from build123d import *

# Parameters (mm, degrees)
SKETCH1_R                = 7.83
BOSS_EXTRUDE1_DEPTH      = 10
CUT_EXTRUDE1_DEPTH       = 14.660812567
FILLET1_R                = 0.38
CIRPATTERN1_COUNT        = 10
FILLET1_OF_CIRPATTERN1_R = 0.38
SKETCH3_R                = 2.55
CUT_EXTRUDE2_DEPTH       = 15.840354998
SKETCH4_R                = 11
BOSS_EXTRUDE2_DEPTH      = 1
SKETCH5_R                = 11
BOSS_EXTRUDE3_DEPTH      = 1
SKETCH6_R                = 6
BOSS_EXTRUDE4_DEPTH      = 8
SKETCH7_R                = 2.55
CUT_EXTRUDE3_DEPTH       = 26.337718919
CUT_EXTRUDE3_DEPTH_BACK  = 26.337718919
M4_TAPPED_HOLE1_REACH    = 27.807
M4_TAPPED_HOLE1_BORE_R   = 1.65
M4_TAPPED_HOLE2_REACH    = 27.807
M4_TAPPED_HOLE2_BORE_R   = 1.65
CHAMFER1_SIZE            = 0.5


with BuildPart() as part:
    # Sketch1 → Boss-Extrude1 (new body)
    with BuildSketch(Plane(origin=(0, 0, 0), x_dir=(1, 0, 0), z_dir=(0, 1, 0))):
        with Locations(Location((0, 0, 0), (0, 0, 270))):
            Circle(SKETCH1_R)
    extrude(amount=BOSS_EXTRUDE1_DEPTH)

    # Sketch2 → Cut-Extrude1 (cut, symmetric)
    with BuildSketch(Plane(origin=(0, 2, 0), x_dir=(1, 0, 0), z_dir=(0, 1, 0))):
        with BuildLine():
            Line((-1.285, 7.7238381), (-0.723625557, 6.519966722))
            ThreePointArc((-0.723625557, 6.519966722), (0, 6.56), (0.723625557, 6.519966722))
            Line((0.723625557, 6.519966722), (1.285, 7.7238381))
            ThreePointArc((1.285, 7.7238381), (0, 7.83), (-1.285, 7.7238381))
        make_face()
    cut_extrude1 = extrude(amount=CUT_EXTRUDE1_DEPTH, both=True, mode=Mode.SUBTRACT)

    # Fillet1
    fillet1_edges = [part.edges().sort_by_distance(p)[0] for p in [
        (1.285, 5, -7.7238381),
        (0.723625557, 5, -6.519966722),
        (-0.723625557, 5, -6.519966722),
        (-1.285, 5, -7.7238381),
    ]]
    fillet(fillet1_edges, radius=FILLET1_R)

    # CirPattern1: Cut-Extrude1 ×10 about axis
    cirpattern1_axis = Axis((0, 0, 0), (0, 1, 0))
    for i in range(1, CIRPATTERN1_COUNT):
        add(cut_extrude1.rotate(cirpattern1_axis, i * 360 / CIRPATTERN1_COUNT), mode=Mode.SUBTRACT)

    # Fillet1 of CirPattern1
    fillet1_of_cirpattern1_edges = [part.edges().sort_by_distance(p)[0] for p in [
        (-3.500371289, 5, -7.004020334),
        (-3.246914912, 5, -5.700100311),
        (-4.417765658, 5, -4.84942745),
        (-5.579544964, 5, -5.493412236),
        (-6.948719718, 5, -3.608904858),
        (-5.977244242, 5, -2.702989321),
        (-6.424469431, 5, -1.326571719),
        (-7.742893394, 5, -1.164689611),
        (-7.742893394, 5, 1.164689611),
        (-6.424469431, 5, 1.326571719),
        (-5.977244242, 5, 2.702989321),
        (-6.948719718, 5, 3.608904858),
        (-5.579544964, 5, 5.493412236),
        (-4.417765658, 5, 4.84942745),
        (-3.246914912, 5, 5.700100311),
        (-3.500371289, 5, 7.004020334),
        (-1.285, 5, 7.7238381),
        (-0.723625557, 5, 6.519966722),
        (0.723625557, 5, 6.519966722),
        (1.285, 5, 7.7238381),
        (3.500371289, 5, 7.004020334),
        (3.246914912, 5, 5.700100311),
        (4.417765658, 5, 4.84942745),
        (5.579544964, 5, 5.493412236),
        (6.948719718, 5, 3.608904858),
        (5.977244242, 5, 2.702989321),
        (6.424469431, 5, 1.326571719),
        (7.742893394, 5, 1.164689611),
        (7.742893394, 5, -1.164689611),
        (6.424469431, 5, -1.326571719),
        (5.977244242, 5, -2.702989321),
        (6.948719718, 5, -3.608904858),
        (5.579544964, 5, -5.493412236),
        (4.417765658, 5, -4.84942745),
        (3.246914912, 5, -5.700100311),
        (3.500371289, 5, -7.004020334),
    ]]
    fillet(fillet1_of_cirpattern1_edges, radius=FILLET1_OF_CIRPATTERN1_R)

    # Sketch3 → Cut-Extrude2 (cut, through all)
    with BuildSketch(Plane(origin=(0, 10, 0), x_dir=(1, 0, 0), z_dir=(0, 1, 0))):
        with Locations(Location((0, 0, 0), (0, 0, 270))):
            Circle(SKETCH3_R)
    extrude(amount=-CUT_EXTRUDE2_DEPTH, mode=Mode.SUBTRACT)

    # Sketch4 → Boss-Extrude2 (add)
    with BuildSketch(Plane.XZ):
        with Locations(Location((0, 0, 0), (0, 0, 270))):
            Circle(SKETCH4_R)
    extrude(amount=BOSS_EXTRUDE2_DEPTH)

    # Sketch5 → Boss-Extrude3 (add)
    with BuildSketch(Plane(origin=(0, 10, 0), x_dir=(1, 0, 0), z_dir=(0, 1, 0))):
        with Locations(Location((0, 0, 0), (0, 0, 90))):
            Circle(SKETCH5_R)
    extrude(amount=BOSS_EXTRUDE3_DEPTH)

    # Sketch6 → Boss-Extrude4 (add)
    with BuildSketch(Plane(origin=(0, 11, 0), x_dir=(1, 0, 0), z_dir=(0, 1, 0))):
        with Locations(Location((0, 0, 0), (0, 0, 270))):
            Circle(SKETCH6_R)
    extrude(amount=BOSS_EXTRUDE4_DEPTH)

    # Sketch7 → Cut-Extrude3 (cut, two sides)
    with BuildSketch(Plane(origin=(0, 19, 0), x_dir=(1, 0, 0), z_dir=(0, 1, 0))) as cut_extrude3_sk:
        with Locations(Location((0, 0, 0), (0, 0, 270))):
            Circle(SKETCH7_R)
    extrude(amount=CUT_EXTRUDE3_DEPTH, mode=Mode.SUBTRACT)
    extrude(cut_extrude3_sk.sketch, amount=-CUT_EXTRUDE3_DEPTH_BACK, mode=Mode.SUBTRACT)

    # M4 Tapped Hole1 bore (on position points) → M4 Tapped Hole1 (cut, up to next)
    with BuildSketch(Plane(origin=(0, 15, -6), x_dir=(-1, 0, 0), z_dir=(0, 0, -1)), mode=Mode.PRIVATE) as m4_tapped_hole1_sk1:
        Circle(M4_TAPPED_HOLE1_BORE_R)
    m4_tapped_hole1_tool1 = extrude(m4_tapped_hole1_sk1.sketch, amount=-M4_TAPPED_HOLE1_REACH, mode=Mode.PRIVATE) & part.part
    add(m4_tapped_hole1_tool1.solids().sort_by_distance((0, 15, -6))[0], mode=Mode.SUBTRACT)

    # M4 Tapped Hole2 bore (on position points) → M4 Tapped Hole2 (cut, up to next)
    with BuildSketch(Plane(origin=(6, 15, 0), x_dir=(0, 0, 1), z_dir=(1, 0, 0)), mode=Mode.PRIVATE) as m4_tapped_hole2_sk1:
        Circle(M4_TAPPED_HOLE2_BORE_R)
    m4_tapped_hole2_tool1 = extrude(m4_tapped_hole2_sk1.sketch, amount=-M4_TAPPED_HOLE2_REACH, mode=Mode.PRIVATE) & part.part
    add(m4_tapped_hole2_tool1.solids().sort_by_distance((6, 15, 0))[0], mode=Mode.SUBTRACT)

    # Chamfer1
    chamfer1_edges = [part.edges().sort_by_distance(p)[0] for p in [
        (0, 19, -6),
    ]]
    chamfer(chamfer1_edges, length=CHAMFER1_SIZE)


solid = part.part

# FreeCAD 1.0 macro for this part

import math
import FreeCAD as App
import Part
import Sketcher
Q = App.Units.Quantity


def edges_at(feature, points):
    """Names of the edges that pass closest to the given points."""
    edges = feature.Shape.Edges
    near = lambda p: min(range(len(edges)), key=lambda i: edges[i].distToShape(Part.Vertex(*p))[0])
    return sorted({f"Edge{near(p) + 1}" for p in points})

doc = App.newDocument("Part")
body = doc.addObject("PartDesign::Body", "Body")

sketch1 = body.newObject("Sketcher::SketchObject", "Sketch")
sketch1.AttachmentSupport = (doc.getObject("XZ_Plane"), [""])
sketch1.MapMode = "FlatFace"
sketch1.addGeometry(Part.Circle(App.Vector(0, 0, 0), App.Vector(0, 0, 1), 8), False)
sketch1.addConstraint(Sketcher.Constraint("Coincident", 0, 3, -1, 1))
sketch1.addConstraint(Sketcher.Constraint("Diameter", 0, 15.66))
pad1 = body.newObject("PartDesign::Pad", "Pad")
pad1.Profile = sketch1
pad1.Length = 10
pad1.Reversed = True

sketch2 = body.newObject("Sketcher::SketchObject", "Sketch001")
sketch2.AttachmentSupport = (doc.getObject("XZ_Plane"), [""])
sketch2.MapMode = "FlatFace"
sketch2.AttachmentOffset = App.Placement(App.Vector(0, 0, -2), App.Rotation())
sketch2.addGeometry(Part.LineSegment(App.Vector(-1.3, -7.7, 0), App.Vector(-0.7, -6.5, 0)), False)
sketch2.addGeometry(Part.ArcOfCircle(Part.Circle(App.Vector(0, 0, 0), App.Vector(0, 0, 1), 6.6), math.radians(-96.33), math.radians(-83.67)), False)
sketch2.addGeometry(Part.LineSegment(App.Vector(0.7, -6.5, 0), App.Vector(1.3, -7.7, 0)), False)
sketch2.addGeometry(Part.ArcOfCircle(Part.Circle(App.Vector(0, 0, 0), App.Vector(0, 0, 1), 7.8), math.radians(-99.45), math.radians(-80.55)), False)
sketch2.addConstraint(Sketcher.Constraint("Coincident", 0, 2, 1, 1))
sketch2.addConstraint(Sketcher.Constraint("Coincident", 1, 2, 2, 1))
sketch2.addConstraint(Sketcher.Constraint("Coincident", 2, 2, 3, 2))
sketch2.addConstraint(Sketcher.Constraint("Coincident", 3, 1, 0, 1))
sketch2.addConstraint(Sketcher.Constraint("Coincident", 1, 3, -1, 1))
sketch2.addConstraint(Sketcher.Constraint("Coincident", 3, 3, -1, 1))
sketch2.addConstraint(Sketcher.Constraint("Horizontal", 0, 2, 1, 2))
sketch2.addConstraint(Sketcher.Constraint("Horizontal", 2, 2, 3, 1))
sketch2.addConstraint(Sketcher.Constraint("Angle", 0, Q("65 deg")))
sketch2.addConstraint(Sketcher.Constraint("Radius", 1, 6.56))
sketch2.addConstraint(Sketcher.Constraint("Radius", 3, 7.83))
sketch2.addConstraint(Sketcher.Constraint("DistanceX", 3, 1, 2, 2, 2.57))
pocket1 = body.newObject("PartDesign::Pocket", "Pocket")
pocket1.Profile = sketch2
pocket1.Length = 29.321625
pocket1.Midplane = True
doc.recompute()

fillet = body.newObject("PartDesign::Fillet", "Fillet")
fillet.Base = (pocket1, edges_at(pocket1, [
    (1.285, 5, -7.724),
    (0.724, 5, -6.52),
    (-0.724, 5, -6.52),
    (-1.285, 5, -7.724),
]))
fillet.Radius = 0.38
doc.recompute()

polarpattern = body.newObject("PartDesign::PolarPattern", "PolarPattern")
polarpattern.Originals = [pocket1]
polarpattern.Axis = (doc.getObject("Y_Axis"), [""])
polarpattern.Angle = 360
polarpattern.Occurrences = 10
body.Tip = polarpattern
doc.recompute()

fillet2 = body.newObject("PartDesign::Fillet", "Fillet001")
fillet2.Base = (polarpattern, edges_at(polarpattern, [
    (-3.5, 5, -7.004),
    (-3.247, 5, -5.7),
    (-4.418, 5, -4.849),
    (-5.58, 5, -5.493),
    (-6.949, 5, -3.609),
    (-5.977, 5, -2.703),
    (-6.424, 5, -1.327),
    (-7.743, 5, -1.165),
    (-7.743, 5, 1.165),
    (-6.424, 5, 1.327),
    (-5.977, 5, 2.703),
    (-6.949, 5, 3.609),
    (-5.58, 5, 5.493),
    (-4.418, 5, 4.849),
    (-3.247, 5, 5.7),
    (-3.5, 5, 7.004),
    (-1.285, 5, 7.724),
    (-0.724, 5, 6.52),
    (0.724, 5, 6.52),
    (1.285, 5, 7.724),
    (3.5, 5, 7.004),
    (3.247, 5, 5.7),
    (4.418, 5, 4.849),
    (5.58, 5, 5.493),
    (6.949, 5, 3.609),
    (5.977, 5, 2.703),
    (6.424, 5, 1.327),
    (7.743, 5, 1.165),
    (7.743, 5, -1.165),
    (6.424, 5, -1.327),
    (5.977, 5, -2.703),
    (6.949, 5, -3.609),
    (5.58, 5, -5.493),
    (4.418, 5, -4.849),
    (3.247, 5, -5.7),
    (3.5, 5, -7.004),
]))
fillet2.Radius = 0.38

sketch3 = body.newObject("Sketcher::SketchObject", "Sketch002")
sketch3.AttachmentSupport = (doc.getObject("XZ_Plane"), [""])
sketch3.MapMode = "FlatFace"
sketch3.AttachmentOffset = App.Placement(App.Vector(0, 0, -10), App.Rotation())
sketch3.addGeometry(Part.Circle(App.Vector(0, 0, 0), App.Vector(0, 0, 1), 2.5), False)
sketch3.addConstraint(Sketcher.Constraint("Coincident", 0, 3, -1, 1))
sketch3.addConstraint(Sketcher.Constraint("Diameter", 0, 5.1))
pocket2 = body.newObject("PartDesign::Pocket", "Pocket001")
pocket2.Profile = sketch3
pocket2.Type = "ThroughAll"
pocket2.Reversed = True

sketch4 = body.newObject("Sketcher::SketchObject", "Sketch003")
sketch4.AttachmentSupport = (doc.getObject("XZ_Plane"), [""])
sketch4.MapMode = "FlatFace"
sketch4.addGeometry(Part.Circle(App.Vector(0, 0, 0), App.Vector(0, 0, 1), 11), False)
sketch4.addConstraint(Sketcher.Constraint("Coincident", 0, 3, -1, 1))
sketch4.addConstraint(Sketcher.Constraint("Diameter", 0, 22.0))
pad2 = body.newObject("PartDesign::Pad", "Pad001")
pad2.Profile = sketch4
pad2.Length = 1

sketch5 = body.newObject("Sketcher::SketchObject", "Sketch004")
sketch5.AttachmentSupport = (doc.getObject("XZ_Plane"), [""])
sketch5.MapMode = "FlatFace"
sketch5.AttachmentOffset = App.Placement(App.Vector(0, 0, -10), App.Rotation())
sketch5.addGeometry(Part.Circle(App.Vector(0, 0, 0), App.Vector(0, 0, 1), 11), False)
sketch5.addConstraint(Sketcher.Constraint("Coincident", 0, 3, -1, 1))
sketch5.addConstraint(Sketcher.Constraint("Diameter", 0, 22.0))
pad3 = body.newObject("PartDesign::Pad", "Pad002")
pad3.Profile = sketch5
pad3.Length = 1
pad3.Reversed = True

sketch6 = body.newObject("Sketcher::SketchObject", "Sketch005")
sketch6.AttachmentSupport = (doc.getObject("XZ_Plane"), [""])
sketch6.MapMode = "FlatFace"
sketch6.AttachmentOffset = App.Placement(App.Vector(0, 0, -11), App.Rotation())
sketch6.addGeometry(Part.Circle(App.Vector(0, 0, 0), App.Vector(0, 0, 1), 6), False)
sketch6.addConstraint(Sketcher.Constraint("Coincident", 0, 3, -1, 1))
sketch6.addConstraint(Sketcher.Constraint("Diameter", 0, 12.0))
pad4 = body.newObject("PartDesign::Pad", "Pad003")
pad4.Profile = sketch6
pad4.Length = 8
pad4.Reversed = True

sketch7 = body.newObject("Sketcher::SketchObject", "Sketch006")
sketch7.AttachmentSupport = (doc.getObject("XZ_Plane"), [""])
sketch7.MapMode = "FlatFace"
sketch7.AttachmentOffset = App.Placement(App.Vector(0, 0, -19), App.Rotation())
sketch7.addGeometry(Part.Circle(App.Vector(0, 0, 0), App.Vector(0, 0, 1), 2.5), False)
sketch7.addConstraint(Sketcher.Constraint("Coincident", 0, 3, -1, 1))
sketch7.addConstraint(Sketcher.Constraint("Diameter", 0, 5.1))
pocket3 = body.newObject("PartDesign::Pocket", "Pocket002")
pocket3.Profile = sketch7
pocket3.Type = "ThroughAll"
pocket3.Midplane = True

sketch8 = body.newObject("Sketcher::SketchObject", "Sketch007")
sketch8.AttachmentSupport = (doc.getObject("XY_Plane"), [""])
sketch8.MapMode = "FlatFace"
sketch8.AttachmentOffset = App.Placement(App.Vector(0, 0, -6), App.Rotation())
sketch8.addGeometry(Part.Circle(App.Vector(0, 15, 0), App.Vector(0, 0, 1), 1.6), False)
sketch8.addConstraint(Sketcher.Constraint("PointOnObject", 0, 3, -2))
sketch8.addConstraint(Sketcher.Constraint("Diameter", 0, 3.3))
sketch8.addConstraint(Sketcher.Constraint("DistanceY", -1, 1, 0, 3, 15.0))
pocket4 = body.newObject("PartDesign::Pocket", "Pocket003")
pocket4.Profile = sketch8
pocket4.Type = "UpToFirst"
pocket4.Reversed = True

sketch9 = body.newObject("Sketcher::SketchObject", "Sketch008")
sketch9.AttachmentSupport = (doc.getObject("YZ_Plane"), [""])
sketch9.MapMode = "FlatFace"
sketch9.AttachmentOffset = App.Placement(App.Vector(0, 0, 6), App.Rotation())
sketch9.addGeometry(Part.Circle(App.Vector(15, 0, 0), App.Vector(0, 0, 1), 1.6), False)
sketch9.addConstraint(Sketcher.Constraint("PointOnObject", 0, 3, -1))
sketch9.addConstraint(Sketcher.Constraint("Diameter", 0, 3.3))
sketch9.addConstraint(Sketcher.Constraint("DistanceX", -1, 1, 0, 3, 15.0))
pocket5 = body.newObject("PartDesign::Pocket", "Pocket004")
pocket5.Profile = sketch9
pocket5.Type = "UpToFirst"
doc.recompute()

chamfer = body.newObject("PartDesign::Chamfer", "Chamfer")
chamfer.Base = (pocket5, edges_at(pocket5, [(0, 19, -6)]))
chamfer.Size = 0.5

doc.recompute()
